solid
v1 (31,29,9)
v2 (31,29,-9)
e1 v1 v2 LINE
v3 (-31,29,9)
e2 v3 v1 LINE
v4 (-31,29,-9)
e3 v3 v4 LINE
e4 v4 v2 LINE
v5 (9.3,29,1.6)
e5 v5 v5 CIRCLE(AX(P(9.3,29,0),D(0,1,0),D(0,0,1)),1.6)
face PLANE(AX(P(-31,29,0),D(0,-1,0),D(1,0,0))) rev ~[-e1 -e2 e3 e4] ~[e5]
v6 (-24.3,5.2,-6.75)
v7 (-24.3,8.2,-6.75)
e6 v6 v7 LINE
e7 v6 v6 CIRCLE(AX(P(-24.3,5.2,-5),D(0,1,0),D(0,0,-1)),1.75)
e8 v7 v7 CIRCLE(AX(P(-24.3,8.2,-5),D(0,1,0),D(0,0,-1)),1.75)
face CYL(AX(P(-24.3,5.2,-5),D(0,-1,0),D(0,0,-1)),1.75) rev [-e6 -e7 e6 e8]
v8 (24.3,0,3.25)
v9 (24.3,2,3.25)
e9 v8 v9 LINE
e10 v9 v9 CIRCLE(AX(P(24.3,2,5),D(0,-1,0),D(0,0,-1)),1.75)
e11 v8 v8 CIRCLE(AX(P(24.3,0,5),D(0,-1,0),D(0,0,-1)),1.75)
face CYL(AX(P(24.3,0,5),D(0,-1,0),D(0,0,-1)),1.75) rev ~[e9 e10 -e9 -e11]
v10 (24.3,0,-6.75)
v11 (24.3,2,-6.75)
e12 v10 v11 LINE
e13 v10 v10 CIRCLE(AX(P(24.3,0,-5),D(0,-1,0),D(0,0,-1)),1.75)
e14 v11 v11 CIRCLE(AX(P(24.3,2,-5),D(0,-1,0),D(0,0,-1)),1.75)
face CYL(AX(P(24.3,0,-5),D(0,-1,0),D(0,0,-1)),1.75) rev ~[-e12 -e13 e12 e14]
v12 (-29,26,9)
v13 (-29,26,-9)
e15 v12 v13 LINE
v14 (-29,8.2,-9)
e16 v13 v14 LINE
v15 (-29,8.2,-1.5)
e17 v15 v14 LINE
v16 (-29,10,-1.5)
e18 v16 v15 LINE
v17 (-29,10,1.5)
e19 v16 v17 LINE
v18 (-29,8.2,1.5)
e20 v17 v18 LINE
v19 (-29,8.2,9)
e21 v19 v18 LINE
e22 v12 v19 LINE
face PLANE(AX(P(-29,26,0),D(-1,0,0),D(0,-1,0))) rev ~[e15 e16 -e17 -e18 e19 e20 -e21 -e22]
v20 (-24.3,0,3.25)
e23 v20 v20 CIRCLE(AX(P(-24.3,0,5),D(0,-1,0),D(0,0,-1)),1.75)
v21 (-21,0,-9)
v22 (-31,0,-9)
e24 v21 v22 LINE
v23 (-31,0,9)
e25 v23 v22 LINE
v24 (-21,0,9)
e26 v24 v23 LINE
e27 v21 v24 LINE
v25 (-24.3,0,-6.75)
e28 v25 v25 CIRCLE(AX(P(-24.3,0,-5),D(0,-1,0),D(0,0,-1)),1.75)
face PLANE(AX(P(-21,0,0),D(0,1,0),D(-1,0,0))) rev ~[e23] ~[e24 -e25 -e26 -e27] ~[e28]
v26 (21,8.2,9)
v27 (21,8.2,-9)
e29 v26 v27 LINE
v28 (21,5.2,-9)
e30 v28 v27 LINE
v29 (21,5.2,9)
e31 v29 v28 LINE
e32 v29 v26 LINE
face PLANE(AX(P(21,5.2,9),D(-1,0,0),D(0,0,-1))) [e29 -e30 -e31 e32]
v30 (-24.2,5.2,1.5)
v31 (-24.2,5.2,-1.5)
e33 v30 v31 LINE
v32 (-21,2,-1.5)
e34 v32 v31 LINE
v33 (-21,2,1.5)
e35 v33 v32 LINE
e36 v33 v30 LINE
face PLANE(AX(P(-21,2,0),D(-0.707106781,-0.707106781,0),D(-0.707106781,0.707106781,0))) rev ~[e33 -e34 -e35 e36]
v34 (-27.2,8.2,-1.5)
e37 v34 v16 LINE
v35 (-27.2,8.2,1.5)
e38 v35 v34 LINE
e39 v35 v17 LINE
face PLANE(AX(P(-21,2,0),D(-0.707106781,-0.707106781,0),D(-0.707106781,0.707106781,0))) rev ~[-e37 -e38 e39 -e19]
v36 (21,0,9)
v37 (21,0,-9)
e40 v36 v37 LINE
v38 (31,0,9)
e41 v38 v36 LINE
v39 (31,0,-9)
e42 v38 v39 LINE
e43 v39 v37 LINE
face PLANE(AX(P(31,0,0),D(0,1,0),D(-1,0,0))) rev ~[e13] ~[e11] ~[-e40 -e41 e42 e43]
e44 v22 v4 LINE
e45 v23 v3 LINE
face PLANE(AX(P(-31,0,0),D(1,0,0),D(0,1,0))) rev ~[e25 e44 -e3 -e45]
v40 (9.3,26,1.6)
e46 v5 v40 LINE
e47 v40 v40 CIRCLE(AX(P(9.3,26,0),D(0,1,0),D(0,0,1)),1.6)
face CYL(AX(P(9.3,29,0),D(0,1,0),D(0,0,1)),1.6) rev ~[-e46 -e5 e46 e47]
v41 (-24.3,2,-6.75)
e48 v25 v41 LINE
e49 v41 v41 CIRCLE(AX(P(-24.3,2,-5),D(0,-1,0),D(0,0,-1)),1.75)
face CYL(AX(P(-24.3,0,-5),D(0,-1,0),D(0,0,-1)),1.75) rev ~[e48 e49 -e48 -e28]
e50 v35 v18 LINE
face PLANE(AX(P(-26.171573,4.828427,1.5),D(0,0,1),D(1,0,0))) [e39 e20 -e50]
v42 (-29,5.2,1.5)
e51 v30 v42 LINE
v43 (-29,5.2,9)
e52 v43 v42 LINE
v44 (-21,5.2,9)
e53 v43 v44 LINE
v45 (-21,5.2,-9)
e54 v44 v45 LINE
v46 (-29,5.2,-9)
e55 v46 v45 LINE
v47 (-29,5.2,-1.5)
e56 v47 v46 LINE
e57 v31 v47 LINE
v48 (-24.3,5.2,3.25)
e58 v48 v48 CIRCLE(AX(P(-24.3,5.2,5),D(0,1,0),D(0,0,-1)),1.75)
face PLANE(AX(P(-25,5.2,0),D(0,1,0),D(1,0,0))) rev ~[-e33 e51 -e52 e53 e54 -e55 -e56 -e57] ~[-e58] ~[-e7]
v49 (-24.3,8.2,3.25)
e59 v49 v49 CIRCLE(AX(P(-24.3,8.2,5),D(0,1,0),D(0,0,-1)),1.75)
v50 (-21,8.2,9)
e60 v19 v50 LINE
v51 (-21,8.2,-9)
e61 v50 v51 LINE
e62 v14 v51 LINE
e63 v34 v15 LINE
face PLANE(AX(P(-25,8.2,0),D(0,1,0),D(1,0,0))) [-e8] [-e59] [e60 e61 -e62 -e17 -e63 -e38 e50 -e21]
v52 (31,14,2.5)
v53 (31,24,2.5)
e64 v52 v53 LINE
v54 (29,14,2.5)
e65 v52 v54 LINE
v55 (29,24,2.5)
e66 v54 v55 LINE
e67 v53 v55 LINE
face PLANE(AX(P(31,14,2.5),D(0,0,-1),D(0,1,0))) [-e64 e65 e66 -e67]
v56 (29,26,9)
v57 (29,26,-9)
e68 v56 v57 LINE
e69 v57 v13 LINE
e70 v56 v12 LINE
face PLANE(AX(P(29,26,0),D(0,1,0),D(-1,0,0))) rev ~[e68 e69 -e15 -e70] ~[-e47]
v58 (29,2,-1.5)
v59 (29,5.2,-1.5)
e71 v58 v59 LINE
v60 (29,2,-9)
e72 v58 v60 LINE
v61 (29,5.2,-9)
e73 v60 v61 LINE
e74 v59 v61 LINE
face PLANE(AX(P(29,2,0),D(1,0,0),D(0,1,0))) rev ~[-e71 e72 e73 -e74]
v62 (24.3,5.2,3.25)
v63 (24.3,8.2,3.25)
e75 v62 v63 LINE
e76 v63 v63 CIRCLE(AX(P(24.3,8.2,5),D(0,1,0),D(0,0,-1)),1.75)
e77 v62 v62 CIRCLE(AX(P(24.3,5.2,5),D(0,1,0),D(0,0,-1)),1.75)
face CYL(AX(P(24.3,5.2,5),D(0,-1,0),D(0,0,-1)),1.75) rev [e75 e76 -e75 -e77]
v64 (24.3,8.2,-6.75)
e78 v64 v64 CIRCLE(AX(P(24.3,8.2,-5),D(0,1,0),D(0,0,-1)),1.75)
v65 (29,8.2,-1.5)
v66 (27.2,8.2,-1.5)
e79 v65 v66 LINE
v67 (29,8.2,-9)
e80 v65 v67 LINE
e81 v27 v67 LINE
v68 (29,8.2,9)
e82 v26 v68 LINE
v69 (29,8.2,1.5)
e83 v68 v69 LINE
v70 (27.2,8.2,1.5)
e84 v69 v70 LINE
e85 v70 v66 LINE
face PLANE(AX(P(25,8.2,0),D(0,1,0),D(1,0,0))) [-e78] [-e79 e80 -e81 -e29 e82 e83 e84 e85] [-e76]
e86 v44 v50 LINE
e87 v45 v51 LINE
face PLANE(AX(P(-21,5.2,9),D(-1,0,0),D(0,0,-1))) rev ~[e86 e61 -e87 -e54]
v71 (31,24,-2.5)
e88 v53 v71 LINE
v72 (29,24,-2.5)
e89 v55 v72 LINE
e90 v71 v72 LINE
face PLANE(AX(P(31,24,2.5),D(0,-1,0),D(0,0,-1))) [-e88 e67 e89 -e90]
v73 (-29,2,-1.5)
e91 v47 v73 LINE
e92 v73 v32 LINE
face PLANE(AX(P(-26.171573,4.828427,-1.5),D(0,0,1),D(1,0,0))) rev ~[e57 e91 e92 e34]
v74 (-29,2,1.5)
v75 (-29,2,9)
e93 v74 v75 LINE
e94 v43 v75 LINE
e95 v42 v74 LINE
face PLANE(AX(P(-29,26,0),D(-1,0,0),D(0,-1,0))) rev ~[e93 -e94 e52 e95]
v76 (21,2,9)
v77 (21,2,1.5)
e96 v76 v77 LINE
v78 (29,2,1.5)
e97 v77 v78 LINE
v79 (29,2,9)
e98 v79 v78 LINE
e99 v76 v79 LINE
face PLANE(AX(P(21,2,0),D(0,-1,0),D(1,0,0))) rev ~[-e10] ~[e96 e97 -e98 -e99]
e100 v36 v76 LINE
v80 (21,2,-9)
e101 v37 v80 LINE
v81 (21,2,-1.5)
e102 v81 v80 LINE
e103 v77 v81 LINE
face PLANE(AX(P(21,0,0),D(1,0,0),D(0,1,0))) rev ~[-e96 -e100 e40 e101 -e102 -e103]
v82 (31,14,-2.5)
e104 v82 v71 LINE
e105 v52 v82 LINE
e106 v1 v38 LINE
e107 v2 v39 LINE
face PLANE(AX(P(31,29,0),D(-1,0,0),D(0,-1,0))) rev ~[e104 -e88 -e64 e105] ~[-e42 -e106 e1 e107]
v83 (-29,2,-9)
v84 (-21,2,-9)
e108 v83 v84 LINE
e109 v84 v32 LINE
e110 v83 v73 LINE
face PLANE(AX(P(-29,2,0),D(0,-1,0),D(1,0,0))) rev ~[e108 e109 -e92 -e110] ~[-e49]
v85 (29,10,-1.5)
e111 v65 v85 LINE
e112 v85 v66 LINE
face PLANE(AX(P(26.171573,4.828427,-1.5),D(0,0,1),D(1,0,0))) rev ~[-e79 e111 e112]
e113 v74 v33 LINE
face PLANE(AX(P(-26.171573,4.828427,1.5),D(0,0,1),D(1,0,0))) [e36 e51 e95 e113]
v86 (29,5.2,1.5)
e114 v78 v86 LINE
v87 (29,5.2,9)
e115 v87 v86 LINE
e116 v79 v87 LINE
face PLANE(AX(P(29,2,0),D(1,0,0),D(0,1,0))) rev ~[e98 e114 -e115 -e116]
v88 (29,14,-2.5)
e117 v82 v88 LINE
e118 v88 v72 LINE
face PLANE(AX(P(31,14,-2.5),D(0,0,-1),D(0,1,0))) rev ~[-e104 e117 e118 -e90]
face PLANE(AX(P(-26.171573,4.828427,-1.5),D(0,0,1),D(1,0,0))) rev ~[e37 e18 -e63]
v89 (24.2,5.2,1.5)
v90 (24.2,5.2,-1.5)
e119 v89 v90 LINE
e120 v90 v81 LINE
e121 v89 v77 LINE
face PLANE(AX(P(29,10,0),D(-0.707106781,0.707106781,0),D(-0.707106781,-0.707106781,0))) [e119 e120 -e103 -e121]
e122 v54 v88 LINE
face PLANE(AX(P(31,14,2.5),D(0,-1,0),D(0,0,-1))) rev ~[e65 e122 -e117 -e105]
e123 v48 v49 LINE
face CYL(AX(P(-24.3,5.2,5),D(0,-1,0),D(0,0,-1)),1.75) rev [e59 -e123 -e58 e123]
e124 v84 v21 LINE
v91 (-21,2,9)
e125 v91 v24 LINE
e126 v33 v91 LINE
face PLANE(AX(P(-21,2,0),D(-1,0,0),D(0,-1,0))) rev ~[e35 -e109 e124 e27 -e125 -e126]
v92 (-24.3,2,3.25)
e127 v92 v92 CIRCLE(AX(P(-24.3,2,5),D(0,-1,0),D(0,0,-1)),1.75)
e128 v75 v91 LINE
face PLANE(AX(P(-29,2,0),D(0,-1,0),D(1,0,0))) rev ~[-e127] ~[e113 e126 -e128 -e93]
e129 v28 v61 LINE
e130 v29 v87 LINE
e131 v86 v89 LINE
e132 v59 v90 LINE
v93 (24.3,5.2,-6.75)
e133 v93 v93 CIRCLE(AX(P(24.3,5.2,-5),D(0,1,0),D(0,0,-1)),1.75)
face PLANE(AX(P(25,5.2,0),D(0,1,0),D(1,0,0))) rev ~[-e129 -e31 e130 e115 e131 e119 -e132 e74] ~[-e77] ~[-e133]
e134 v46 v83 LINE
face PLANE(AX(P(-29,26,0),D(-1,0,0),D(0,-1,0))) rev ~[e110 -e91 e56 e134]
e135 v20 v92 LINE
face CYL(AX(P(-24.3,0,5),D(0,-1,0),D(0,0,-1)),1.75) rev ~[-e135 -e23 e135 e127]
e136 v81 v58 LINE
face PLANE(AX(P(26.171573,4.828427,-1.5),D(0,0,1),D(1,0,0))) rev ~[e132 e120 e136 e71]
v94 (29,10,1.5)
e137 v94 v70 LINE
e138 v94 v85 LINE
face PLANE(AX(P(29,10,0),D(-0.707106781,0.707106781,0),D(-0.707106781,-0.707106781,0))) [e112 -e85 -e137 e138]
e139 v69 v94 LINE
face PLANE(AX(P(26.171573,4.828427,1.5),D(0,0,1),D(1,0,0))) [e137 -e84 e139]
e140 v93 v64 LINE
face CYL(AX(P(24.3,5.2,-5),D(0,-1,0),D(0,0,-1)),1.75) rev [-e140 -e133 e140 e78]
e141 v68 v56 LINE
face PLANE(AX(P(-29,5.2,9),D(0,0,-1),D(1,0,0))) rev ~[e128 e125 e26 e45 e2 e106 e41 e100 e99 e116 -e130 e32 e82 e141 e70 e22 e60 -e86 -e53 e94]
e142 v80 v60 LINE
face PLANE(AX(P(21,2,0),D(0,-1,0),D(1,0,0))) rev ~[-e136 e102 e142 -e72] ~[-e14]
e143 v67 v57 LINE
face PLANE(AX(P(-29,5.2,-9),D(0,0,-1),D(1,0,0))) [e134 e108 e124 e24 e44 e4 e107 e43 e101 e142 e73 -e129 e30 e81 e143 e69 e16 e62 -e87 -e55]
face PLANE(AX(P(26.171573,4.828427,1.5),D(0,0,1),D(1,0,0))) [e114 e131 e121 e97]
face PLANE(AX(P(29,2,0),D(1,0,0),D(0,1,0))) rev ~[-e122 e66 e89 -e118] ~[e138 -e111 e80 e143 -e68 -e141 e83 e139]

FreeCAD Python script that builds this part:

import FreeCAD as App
import Part
import Sketcher

V = App.Vector


def add_polygon(sketch, points):
    """Adds a closed chain of lines whose ends are joined by coincident constraints."""
    first, n = sketch.GeometryCount, len(points)
    for a, b in zip(points, points[1:] + points[:1]):
        sketch.addGeometry(Part.LineSegment(App.Vector(*a, 0), App.Vector(*b, 0)), False)
    for i in range(n):
        sketch.addConstraint(Sketcher.Constraint("Coincident", first + i, 2, first + (i + 1) % n, 1))

doc = App.newDocument("Part")
body = doc.addObject("PartDesign::Body", "Body")

sketch1 = body.newObject("Sketcher::SketchObject", "Sketch")
sketch1.AttachmentSupport = (doc.getObject("XY_Plane"), [""])
sketch1.MapMode = "FlatFace"
add_polygon(sketch1, [(-31, 0), (-21, 0), (-21, 2), (-29, 2), (-29, 26), (29, 26), (29, 2), (21, 2), (21, 0), (31, 0), (31, 29), (-31, 29)])
sketch1.addConstraint([
    Sketcher.Constraint("Horizontal", 0),
    Sketcher.Constraint("Vertical", 1),
    Sketcher.Constraint("Horizontal", 2),
    Sketcher.Constraint("Vertical", 3),
    Sketcher.Constraint("Horizontal", 4),
    Sketcher.Constraint("Vertical", 5),
    Sketcher.Constraint("Horizontal", 6),
    Sketcher.Constraint("Vertical", 7),
    Sketcher.Constraint("Horizontal", 8),
    Sketcher.Constraint("Vertical", 9),
    Sketcher.Constraint("Horizontal", 10),
    Sketcher.Constraint("Vertical", 11),
    Sketcher.Constraint("Symmetric", 0, 2, 7, 2, -1, 1),
    Sketcher.Constraint("Symmetric", 2, 2, 5, 2, -2),
    Sketcher.Constraint("Symmetric", 8, 2, 11, 2, -2),
    Sketcher.Constraint("DistanceX", 0, 1, 0, 2, 10.0),
    Sketcher.Constraint("DistanceX", 2, 2, 2, 1, 8.0),
    Sketcher.Constraint("DistanceX", 4, 1, 4, 2, 58.0),
    Sketcher.Constraint("DistanceY", 1, 1, 1, 2, 2.0),
    Sketcher.Constraint("DistanceY", 3, 1, 3, 2, 24.0),
    Sketcher.Constraint("DistanceY", 9, 1, 9, 2, 29.0),
])
pad1 = body.newObject("PartDesign::Pad", "Pad")
pad1.Profile = sketch1
pad1.Length = 18
pad1.Midplane = True

sketch2 = body.newObject("Sketcher::SketchObject", "Sketch001")
sketch2.AttachmentSupport = (doc.getObject("XZ_Plane"), [""])
sketch2.MapMode = "FlatFace"
sketch2.addGeometry([
    Part.Circle(V(-24.3, -5, 0), V(0, 0, 1), 1.75),
    Part.Circle(V(-24.3, 5, 0), V(0, 0, 1), 1.75),
    Part.Circle(V(24.3, 5, 0), V(0, 0, 1), 1.75),
    Part.Circle(V(24.3, -5, 0), V(0, 0, 1), 1.75),
], False)
sketch2.addConstraint([
    Sketcher.Constraint("Equal", 0, 1),
    Sketcher.Constraint("Equal", 1, 2),
    Sketcher.Constraint("Equal", 2, 3),
    Sketcher.Constraint("Symmetric", 0, 3, 2, 3, -1, 1),
    Sketcher.Constraint("Symmetric", 1, 3, 3, 3, -1, 1),
    Sketcher.Constraint("Symmetric", 1, 3, 2, 3, -2),
    Sketcher.Constraint("Diameter", 0, 3.5),
    Sketcher.Constraint("DistanceY", 0, 3, -1, 1, 5.0),
    Sketcher.Constraint("DistanceX", 0, 3, -1, 1, 24.3),
])
pocket1 = body.newObject("PartDesign::Pocket", "Pocket")
pocket1.Profile = sketch2
pocket1.Length = 16

sketch3 = body.newObject("Sketcher::SketchObject", "Sketch002")
sketch3.AttachmentSupport = (doc.getObject("XY_Plane"), [""])
sketch3.MapMode = "FlatFace"
add_polygon(sketch3, [(-21, 2), (-29, 10), (-29, 2)])
add_polygon(sketch3, [(21, 2), (29, 2), (29, 10)])
sketch3.addConstraint([
    Sketcher.Constraint("Vertical", 1),
    Sketcher.Constraint("Horizontal", 2),
    Sketcher.Constraint("Horizontal", 3),
    Sketcher.Constraint("Vertical", 4),
    Sketcher.Constraint("Symmetric", 1, 2, 3, 2, -2),
    Sketcher.Constraint("Perpendicular", 0, 5),
    Sketcher.Constraint("Horizontal", 0, 2, 4, 2),
    Sketcher.Constraint("Equal", 2, 3),
    Sketcher.Constraint("DistanceX", 2, 1, 2, 2, 8.0),
    Sketcher.Constraint("DistanceX", 0, 2, -1, 1, 29.0),
    Sketcher.Constraint("DistanceY", -1, 1, 0, 2, 10.0),
])
pad2 = body.newObject("PartDesign::Pad", "Pad001")
pad2.Profile = sketch3
pad2.Length = 3
pad2.Midplane = True

sketch4 = body.newObject("Sketcher::SketchObject", "Sketch003")
sketch4.AttachmentSupport = (doc.getObject("XZ_Plane"), [""])
sketch4.MapMode = "FlatFace"
sketch4.AttachmentOffset = App.Placement(V(0, 0, -29), App.Rotation())
sketch4.addGeometry(Part.Circle(V(9.3, 0, 0), V(0, 0, 1), 1.6), False)
sketch4.addConstraint([
    Sketcher.Constraint("PointOnObject", 0, 3, -1),
    Sketcher.Constraint("Diameter", 0, 3.2),
    Sketcher.Constraint("DistanceX", -1, 1, 0, 3, 9.3),
])
pocket2 = body.newObject("PartDesign::Pocket", "Pocket001")
pocket2.Profile = sketch4
pocket2.Length = 3
pocket2.Reversed = True

sketch5 = body.newObject("Sketcher::SketchObject", "Sketch004")
sketch5.AttachmentSupport = (doc.getObject("YZ_Plane"), [""])
sketch5.MapMode = "FlatFace"
sketch5.AttachmentOffset = App.Placement(V(0, 0, 31), App.Rotation())
add_polygon(sketch5, [(24, 2.5), (14, 2.5), (14, -2.5), (24, -2.5)])
sketch5.addConstraint([
    Sketcher.Constraint("Horizontal", 0),
    Sketcher.Constraint("Vertical", 1),
    Sketcher.Constraint("Horizontal", 2),
    Sketcher.Constraint("Vertical", 3),
    Sketcher.Constraint("DistanceX", 0, 2, 0, 1, 10.0),
    Sketcher.Constraint("DistanceY", 1, 2, 1, 1, 5.0),
    Sketcher.Constraint("DistanceX", -1, 1, 0, 2, 14.0),
    Sketcher.Constraint("DistanceY", -1, 1, 0, 2, 2.5),
])
pocket3 = body.newObject("PartDesign::Pocket", "Pocket002")
pocket3.Profile = sketch5
pocket3.Length = 10

sketch6 = body.newObject("Sketcher::SketchObject", "Sketch005")
sketch6.AttachmentSupport = (doc.getObject("XZ_Plane"), [""])
sketch6.MapMode = "FlatFace"
sketch6.AttachmentOffset = App.Placement(V(0, 0, -5.2), App.Rotation())
add_polygon(sketch6, [(-29, -9), (-29, 9), (-21, 9), (-21, -9)])
sketch6.addGeometry(Part.Circle(V(-24.3, 5, 0), V(0, 0, 1), 1.75), False)
sketch6.addGeometry(Part.Circle(V(-24.3, -5, 0), V(0, 0, 1), 1.75), False)
add_polygon(sketch6, [(21, -9), (21, 9), (29, 9), (29, -9)])
sketch6.addGeometry(Part.Circle(V(24.3, 5, 0), V(0, 0, 1), 1.75), False)
sketch6.addGeometry(Part.Circle(V(24.3, -5, 0), V(0, 0, 1), 1.75), False)
sketch6.addConstraint([
    Sketcher.Constraint("Vertical", 0),
    Sketcher.Constraint("Horizontal", 1),
    Sketcher.Constraint("Vertical", 2),
    Sketcher.Constraint("Horizontal", 3),
    Sketcher.Constraint("Vertical", 6),
    Sketcher.Constraint("Horizontal", 7),
    Sketcher.Constraint("Vertical", 8),
    Sketcher.Constraint("Horizontal", 9),
    Sketcher.Constraint("Equal", 4, 5),
    Sketcher.Constraint("Equal", 5, 10),
    Sketcher.Constraint("Equal", 10, 11),
    Sketcher.Constraint("Symmetric", 5, 3, 10, 3, -1, 1),
    Sketcher.Constraint("Symmetric", 4, 3, 11, 3, -1, 1),
    Sketcher.Constraint("Symmetric", 2, 2, 6, 2, -1, 1),
    Sketcher.Constraint("Symmetric", 0, 2, 8, 2, -1, 1),
    Sketcher.Constraint("Symmetric", 4, 3, 10, 3, -2),
    Sketcher.Constraint("Horizontal", 1, 2, 6, 2),
    Sketcher.Constraint("Diameter", 4, 3.5),
    Sketcher.Constraint("DistanceX", 1, 1, 1, 2, 8.0),
    Sketcher.Constraint("DistanceY", 0, 1, 0, 2, 18.0),
    Sketcher.Constraint("DistanceY", -1, 1, 4, 3, 5.0),
    Sketcher.Constraint("DistanceX", 0, 2, -1, 1, 29.0),
    Sketcher.Constraint("DistanceX", 4, 3, -1, 1, 24.3),
])
pad3 = body.newObject("PartDesign::Pad", "Pad002")
pad3.Profile = sketch6
pad3.Length = 3
pad3.Reversed = True

doc.recompute()
